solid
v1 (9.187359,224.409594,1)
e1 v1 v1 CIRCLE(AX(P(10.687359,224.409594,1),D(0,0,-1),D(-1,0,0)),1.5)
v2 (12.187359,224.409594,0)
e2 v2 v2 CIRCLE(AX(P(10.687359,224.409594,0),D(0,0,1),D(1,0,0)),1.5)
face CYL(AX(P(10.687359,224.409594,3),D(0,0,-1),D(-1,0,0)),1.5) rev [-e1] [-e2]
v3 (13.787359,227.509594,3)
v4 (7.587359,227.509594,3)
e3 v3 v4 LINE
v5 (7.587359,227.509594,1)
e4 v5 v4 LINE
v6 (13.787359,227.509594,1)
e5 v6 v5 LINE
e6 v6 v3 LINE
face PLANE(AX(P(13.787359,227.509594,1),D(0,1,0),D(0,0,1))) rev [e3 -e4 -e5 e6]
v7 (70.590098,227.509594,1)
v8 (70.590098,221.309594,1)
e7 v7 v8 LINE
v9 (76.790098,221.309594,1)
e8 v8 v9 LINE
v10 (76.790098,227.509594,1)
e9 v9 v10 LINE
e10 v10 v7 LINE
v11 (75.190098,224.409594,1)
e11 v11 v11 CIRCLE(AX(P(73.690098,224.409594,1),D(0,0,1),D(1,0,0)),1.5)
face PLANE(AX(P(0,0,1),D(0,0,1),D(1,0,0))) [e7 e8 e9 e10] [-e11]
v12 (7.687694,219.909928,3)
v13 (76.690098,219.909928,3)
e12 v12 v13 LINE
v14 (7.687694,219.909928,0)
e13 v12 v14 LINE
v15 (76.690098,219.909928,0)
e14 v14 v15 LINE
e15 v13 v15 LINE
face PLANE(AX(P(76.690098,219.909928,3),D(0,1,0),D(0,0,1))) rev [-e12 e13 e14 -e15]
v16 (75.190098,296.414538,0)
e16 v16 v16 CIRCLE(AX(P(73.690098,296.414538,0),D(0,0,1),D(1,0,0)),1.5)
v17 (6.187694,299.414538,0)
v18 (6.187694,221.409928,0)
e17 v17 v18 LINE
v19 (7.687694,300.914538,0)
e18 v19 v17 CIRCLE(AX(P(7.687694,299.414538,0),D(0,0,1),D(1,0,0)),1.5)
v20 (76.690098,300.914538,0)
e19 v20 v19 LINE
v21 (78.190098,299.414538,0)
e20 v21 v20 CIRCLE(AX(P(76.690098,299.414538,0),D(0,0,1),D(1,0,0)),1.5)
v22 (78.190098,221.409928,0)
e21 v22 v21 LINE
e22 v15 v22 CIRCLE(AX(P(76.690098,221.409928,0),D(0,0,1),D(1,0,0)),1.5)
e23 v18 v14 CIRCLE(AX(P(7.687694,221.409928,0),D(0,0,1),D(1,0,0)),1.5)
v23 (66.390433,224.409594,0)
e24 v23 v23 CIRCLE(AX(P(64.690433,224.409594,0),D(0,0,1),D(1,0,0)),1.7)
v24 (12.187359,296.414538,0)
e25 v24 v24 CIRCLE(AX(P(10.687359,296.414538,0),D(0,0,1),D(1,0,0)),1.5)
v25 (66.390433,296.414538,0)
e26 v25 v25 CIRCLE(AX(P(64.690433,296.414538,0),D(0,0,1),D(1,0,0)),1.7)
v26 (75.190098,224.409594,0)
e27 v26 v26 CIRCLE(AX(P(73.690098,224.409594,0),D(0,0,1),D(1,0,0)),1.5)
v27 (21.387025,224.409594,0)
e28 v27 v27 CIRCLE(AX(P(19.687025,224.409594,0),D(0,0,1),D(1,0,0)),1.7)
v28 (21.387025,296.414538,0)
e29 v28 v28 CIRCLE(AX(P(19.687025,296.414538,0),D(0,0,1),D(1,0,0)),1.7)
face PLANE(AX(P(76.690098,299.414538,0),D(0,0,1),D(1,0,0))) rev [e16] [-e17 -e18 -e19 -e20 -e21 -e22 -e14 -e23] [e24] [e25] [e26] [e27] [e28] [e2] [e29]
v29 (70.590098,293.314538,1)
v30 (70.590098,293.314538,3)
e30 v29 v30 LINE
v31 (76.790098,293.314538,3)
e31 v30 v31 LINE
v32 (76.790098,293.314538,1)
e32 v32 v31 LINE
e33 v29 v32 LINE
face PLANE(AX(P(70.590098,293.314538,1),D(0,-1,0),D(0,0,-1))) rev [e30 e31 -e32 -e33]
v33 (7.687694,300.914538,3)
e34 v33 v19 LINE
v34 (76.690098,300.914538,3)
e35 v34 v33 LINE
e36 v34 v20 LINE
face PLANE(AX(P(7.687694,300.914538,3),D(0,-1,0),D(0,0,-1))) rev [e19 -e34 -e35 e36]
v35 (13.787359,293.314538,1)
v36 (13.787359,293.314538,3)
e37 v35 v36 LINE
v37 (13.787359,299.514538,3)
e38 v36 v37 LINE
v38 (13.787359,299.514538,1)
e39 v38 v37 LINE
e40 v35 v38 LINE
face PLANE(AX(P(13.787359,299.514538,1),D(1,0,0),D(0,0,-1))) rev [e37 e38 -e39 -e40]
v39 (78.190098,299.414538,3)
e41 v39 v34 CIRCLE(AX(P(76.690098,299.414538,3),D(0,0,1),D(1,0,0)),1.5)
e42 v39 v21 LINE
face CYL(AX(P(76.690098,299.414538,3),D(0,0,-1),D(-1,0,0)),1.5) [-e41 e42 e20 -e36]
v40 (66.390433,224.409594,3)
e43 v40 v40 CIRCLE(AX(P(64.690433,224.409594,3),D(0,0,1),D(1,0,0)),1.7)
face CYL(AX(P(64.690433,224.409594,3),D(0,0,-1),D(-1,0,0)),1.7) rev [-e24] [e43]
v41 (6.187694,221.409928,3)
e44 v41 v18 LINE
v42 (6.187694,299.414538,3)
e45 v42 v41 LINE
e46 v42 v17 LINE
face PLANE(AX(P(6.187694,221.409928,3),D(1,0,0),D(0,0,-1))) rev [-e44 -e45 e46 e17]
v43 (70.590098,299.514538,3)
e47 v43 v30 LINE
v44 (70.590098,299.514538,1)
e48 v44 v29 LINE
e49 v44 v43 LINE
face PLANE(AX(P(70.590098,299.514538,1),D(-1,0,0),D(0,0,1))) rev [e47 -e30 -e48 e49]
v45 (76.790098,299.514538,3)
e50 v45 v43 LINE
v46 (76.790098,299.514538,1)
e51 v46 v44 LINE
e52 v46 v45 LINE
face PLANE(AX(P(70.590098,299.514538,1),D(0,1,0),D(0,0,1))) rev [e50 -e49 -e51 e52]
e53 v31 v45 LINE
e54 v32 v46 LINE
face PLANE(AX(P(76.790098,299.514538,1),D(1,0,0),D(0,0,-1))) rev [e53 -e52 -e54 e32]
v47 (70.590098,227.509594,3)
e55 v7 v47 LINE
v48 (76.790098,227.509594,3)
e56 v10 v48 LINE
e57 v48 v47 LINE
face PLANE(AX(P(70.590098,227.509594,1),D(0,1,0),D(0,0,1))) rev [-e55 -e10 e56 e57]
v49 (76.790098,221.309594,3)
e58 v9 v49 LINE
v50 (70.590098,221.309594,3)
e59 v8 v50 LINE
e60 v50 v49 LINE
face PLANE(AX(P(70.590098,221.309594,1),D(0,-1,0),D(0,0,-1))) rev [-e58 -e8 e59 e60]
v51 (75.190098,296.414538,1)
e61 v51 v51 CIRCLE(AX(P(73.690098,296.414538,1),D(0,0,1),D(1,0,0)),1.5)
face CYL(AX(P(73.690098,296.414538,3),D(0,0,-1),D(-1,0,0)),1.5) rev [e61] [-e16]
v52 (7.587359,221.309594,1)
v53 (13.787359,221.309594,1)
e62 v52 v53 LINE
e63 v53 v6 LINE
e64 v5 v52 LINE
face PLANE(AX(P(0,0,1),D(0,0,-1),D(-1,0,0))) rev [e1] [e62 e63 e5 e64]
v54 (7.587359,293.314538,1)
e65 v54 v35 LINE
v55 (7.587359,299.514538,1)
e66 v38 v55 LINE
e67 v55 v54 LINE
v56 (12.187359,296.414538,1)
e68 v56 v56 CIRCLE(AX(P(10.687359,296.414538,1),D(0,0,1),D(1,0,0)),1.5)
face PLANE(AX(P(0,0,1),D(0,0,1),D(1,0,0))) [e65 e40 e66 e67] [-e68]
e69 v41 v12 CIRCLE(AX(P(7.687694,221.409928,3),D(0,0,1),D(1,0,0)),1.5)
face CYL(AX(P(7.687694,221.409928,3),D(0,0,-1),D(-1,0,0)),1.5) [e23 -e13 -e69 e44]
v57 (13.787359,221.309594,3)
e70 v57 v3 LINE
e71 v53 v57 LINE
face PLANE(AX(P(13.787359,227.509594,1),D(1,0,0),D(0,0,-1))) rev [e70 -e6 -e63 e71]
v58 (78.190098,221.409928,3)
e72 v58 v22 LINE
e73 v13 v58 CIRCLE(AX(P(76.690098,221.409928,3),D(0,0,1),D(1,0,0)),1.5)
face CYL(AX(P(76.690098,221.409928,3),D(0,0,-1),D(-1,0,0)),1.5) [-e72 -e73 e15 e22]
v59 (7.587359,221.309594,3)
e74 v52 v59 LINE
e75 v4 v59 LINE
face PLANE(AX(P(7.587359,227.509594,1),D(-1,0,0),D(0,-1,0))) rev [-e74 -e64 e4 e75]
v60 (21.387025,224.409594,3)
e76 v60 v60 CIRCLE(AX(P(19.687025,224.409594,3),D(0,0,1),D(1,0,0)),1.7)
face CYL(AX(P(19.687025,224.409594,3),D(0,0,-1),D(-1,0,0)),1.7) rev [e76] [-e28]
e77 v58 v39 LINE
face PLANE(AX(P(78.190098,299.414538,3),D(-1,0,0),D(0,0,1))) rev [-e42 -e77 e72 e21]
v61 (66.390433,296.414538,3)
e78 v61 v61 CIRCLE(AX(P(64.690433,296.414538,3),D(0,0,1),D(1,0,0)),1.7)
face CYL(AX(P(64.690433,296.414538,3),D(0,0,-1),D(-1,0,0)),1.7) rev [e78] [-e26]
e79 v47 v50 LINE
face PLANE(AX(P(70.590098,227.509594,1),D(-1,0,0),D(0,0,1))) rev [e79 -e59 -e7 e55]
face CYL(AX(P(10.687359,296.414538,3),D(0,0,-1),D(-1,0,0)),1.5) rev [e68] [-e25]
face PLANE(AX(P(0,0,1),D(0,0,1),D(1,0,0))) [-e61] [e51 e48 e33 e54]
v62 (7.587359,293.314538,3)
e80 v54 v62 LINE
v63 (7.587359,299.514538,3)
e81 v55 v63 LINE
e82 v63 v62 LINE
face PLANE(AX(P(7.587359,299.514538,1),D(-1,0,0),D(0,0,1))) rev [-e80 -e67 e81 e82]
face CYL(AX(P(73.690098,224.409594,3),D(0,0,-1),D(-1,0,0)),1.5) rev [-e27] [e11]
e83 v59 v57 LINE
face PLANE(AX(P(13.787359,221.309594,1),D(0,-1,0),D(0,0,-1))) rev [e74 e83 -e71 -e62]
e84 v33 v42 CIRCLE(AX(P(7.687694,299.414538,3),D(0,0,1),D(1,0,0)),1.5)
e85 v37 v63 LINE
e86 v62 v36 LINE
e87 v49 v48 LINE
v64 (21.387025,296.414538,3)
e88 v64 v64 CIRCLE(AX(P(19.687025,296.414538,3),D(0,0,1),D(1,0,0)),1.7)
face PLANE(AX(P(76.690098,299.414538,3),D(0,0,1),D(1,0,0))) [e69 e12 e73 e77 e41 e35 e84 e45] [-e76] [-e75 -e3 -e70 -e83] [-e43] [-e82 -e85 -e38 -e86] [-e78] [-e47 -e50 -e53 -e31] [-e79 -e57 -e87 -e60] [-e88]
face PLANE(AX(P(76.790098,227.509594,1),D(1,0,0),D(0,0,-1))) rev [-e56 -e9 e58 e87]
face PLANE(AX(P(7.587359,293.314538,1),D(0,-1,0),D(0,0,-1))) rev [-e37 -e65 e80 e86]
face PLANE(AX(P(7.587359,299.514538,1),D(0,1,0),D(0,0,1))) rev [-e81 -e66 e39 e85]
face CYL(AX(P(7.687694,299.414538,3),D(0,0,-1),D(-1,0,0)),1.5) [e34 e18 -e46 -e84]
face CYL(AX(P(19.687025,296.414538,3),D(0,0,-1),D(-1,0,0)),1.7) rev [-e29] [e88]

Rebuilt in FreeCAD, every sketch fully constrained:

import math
import FreeCAD as App
import Part
import Sketcher
from FreeCAD import Vector

doc = App.newDocument("Part")
body = doc.addObject("PartDesign::Body", "Body")

sketch1 = body.newObject("Sketcher::SketchObject", "Sketch")
sketch1.AttachmentSupport = (doc.getObject("XY_Plane"), [""])
sketch1.MapMode = "FlatFace"
sketch1.addGeometry([
    Part.LineSegment(Vector(6.2, 299.4, 0), Vector(6.2, 221.4, 0)),
    Part.ArcOfCircle(Part.Circle(Vector(7.7, 221.4, 0), Vector(0, 0, 1), 1.5), math.radians(-180), math.radians(-90)),
    Part.LineSegment(Vector(7.7, 219.9, 0), Vector(76.7, 219.9, 0)),
    Part.ArcOfCircle(Part.Circle(Vector(76.7, 221.4, 0), Vector(0, 0, 1), 1.5), math.radians(-90), math.radians(0)),
    Part.LineSegment(Vector(78.2, 221.4, 0), Vector(78.2, 299.4, 0)),
    Part.ArcOfCircle(Part.Circle(Vector(76.7, 299.4, 0), Vector(0, 0, 1), 1.5), math.radians(0), math.radians(90)),
    Part.LineSegment(Vector(76.7, 300.9, 0), Vector(7.7, 300.9, 0)),
    Part.ArcOfCircle(Part.Circle(Vector(7.7, 299.4, 0), Vector(0, 0, 1), 1.5), math.radians(90), math.radians(180)),
    Part.Circle(Vector(73.7, 224.4, 0), Vector(0, 0, 1), 1.5),
    Part.Circle(Vector(64.7, 224.4, 0), Vector(0, 0, 1), 1.7),
    Part.Circle(Vector(19.7, 224.4, 0), Vector(0, 0, 1), 1.7),
    Part.Circle(Vector(10.7, 224.4, 0), Vector(0, 0, 1), 1.5),
    Part.Circle(Vector(73.7, 296.4, 0), Vector(0, 0, 1), 1.5),
    Part.Circle(Vector(64.7, 296.4, 0), Vector(0, 0, 1), 1.7),
    Part.Circle(Vector(19.7, 296.4, 0), Vector(0, 0, 1), 1.7),
    Part.Circle(Vector(10.7, 296.4, 0), Vector(0, 0, 1), 1.5),
], False)
sketch1.addConstraint([
    Sketcher.Constraint("Tangent", 0, 2, 1, 1),
    Sketcher.Constraint("Tangent", 1, 2, 2, 1),
    Sketcher.Constraint("Tangent", 2, 2, 3, 1),
    Sketcher.Constraint("Tangent", 3, 2, 4, 1),
    Sketcher.Constraint("Tangent", 4, 2, 5, 1),
    Sketcher.Constraint("Tangent", 5, 2, 6, 1),
    Sketcher.Constraint("Tangent", 6, 2, 7, 1),
    Sketcher.Constraint("Tangent", 7, 2, 0, 1),
    Sketcher.Constraint("Vertical", 0),
    Sketcher.Constraint("Horizontal", 2),
    Sketcher.Constraint("Vertical", 4),
    Sketcher.Constraint("Horizontal", 6),
    Sketcher.Constraint("Equal", 1, 3),
    Sketcher.Constraint("Equal", 3, 5),
    Sketcher.Constraint("Equal", 5, 7),
    Sketcher.Constraint("Equal", 7, 8),
    Sketcher.Constraint("Equal", 9, 10),
    Sketcher.Constraint("Equal", 8, 11),
    Sketcher.Constraint("Equal", 11, 12),
    Sketcher.Constraint("Equal", 10, 13),
    Sketcher.Constraint("Equal", 13, 14),
    Sketcher.Constraint("Equal", 12, 15),
    Sketcher.Constraint("Horizontal", 8, 3, 9, 3),
    Sketcher.Constraint("Horizontal", 9, 3, 10, 3),
    Sketcher.Constraint("Horizontal", 10, 3, 11, 3),
    Sketcher.Constraint("Horizontal", 12, 3, 13, 3),
    Sketcher.Constraint("Horizontal", 13, 3, 14, 3),
    Sketcher.Constraint("Horizontal", 14, 3, 15, 3),
    Sketcher.Constraint("Vertical", 8, 3, 12, 3),
    Sketcher.Constraint("Vertical", 9, 3, 13, 3),
    Sketcher.Constraint("Vertical", 10, 3, 14, 3),
    Sketcher.Constraint("Vertical", 11, 3, 15, 3),
    Sketcher.Constraint("Diameter", 8, 3.0),
    Sketcher.Constraint("Diameter", 9, 3.4),
    Sketcher.Constraint("DistanceX", 8, 3, 3, 3, 3.0),
    Sketcher.Constraint("DistanceY", 12, 3, 5, 3, 3.0),
    Sketcher.Constraint("DistanceY", 0, 2, 0, 1, 78.00461),
    Sketcher.Constraint("DistanceX", -1, 1, 3, 3, 76.690098),
    Sketcher.Constraint("DistanceX", 2, 1, 2, 2, 69.002404),
    Sketcher.Constraint("DistanceY", -1, 1, 1, 3, 221.409928),
    Sketcher.Constraint("DistanceX", -1, 1, 11, 3, 10.687359),
    Sketcher.Constraint("DistanceX", 1, 3, 9, 3, 57.002739),
    Sketcher.Constraint("DistanceX", 1, 3, 10, 3, 11.999331),
    Sketcher.Constraint("DistanceY", -1, 1, 8, 3, 224.409594),
])
pad1 = body.newObject("PartDesign::Pad", "Pad")
pad1.Profile = sketch1
pad1.Length = 3

sketch2 = body.newObject("Sketcher::SketchObject", "Sketch001")
sketch2.AttachmentSupport = (doc.getObject("XY_Plane"), [""])
sketch2.MapMode = "FlatFace"
sketch2.AttachmentOffset = App.Placement(Vector(0, 0, 3), App.Rotation())
sketch2.addGeometry([
    Part.LineSegment(Vector(8, 300, 0), Vector(8, 293, 0)),
    Part.LineSegment(Vector(8, 293, 0), Vector(14, 293, 0)),
    Part.LineSegment(Vector(14, 293, 0), Vector(14, 300, 0)),
    Part.LineSegment(Vector(14, 300, 0), Vector(8, 300, 0)),
    Part.LineSegment(Vector(71, 300, 0), Vector(71, 293, 0)),
    Part.LineSegment(Vector(71, 293, 0), Vector(77, 293, 0)),
    Part.LineSegment(Vector(77, 293, 0), Vector(77, 300, 0)),
    Part.LineSegment(Vector(77, 300, 0), Vector(71, 300, 0)),
    Part.LineSegment(Vector(71, 228, 0), Vector(71, 221, 0)),
    Part.LineSegment(Vector(71, 221, 0), Vector(77, 221, 0)),
    Part.LineSegment(Vector(77, 221, 0), Vector(77, 228, 0)),
    Part.LineSegment(Vector(77, 228, 0), Vector(71, 228, 0)),
    Part.LineSegment(Vector(8, 228, 0), Vector(8, 221, 0)),
    Part.LineSegment(Vector(8, 221, 0), Vector(14, 221, 0)),
    Part.LineSegment(Vector(14, 221, 0), Vector(14, 228, 0)),
    Part.LineSegment(Vector(14, 228, 0), Vector(8, 228, 0)),
], False)
sketch2.addConstraint([
    Sketcher.Constraint("Coincident", 0, 2, 1, 1),
    Sketcher.Constraint("Coincident", 1, 2, 2, 1),
    Sketcher.Constraint("Coincident", 2, 2, 3, 1),
    Sketcher.Constraint("Coincident", 3, 2, 0, 1),
    Sketcher.Constraint("Coincident", 4, 2, 5, 1),
    Sketcher.Constraint("Coincident", 5, 2, 6, 1),
    Sketcher.Constraint("Coincident", 6, 2, 7, 1),
    Sketcher.Constraint("Coincident", 7, 2, 4, 1),
    Sketcher.Constraint("Coincident", 8, 2, 9, 1),
    Sketcher.Constraint("Coincident", 9, 2, 10, 1),
    Sketcher.Constraint("Coincident", 10, 2, 11, 1),
    Sketcher.Constraint("Coincident", 11, 2, 8, 1),
    Sketcher.Constraint("Coincident", 12, 2, 13, 1),
    Sketcher.Constraint("Coincident", 13, 2, 14, 1),
    Sketcher.Constraint("Coincident", 14, 2, 15, 1),
    Sketcher.Constraint("Coincident", 15, 2, 12, 1),
    Sketcher.Constraint("Vertical", 0),
    Sketcher.Constraint("Horizontal", 1),
    Sketcher.Constraint("Vertical", 2),
    Sketcher.Constraint("Horizontal", 3),
    Sketcher.Constraint("Vertical", 4),
    Sketcher.Constraint("Horizontal", 5),
    Sketcher.Constraint("Vertical", 6),
    Sketcher.Constraint("Horizontal", 7),
    Sketcher.Constraint("Vertical", 8),
    Sketcher.Constraint("Horizontal", 9),
    Sketcher.Constraint("Vertical", 10),
    Sketcher.Constraint("Horizontal", 11),
    Sketcher.Constraint("Vertical", 12),
    Sketcher.Constraint("Horizontal", 13),
    Sketcher.Constraint("Vertical", 14),
    Sketcher.Constraint("Horizontal", 15),
    Sketcher.Constraint("Horizontal", 1, 2, 4, 2),
    Sketcher.Constraint("Horizontal", 3, 2, 6, 2),
    Sketcher.Constraint("Horizontal", 9, 2, 12, 2),
    Sketcher.Constraint("Horizontal", 11, 2, 14, 2),
    Sketcher.Constraint("Vertical", 7, 2, 8, 2),
    Sketcher.Constraint("Vertical", 6, 2, 9, 2),
    Sketcher.Constraint("Vertical", 3, 2, 12, 2),
    Sketcher.Constraint("Vertical", 2, 2, 13, 2),
    Sketcher.Constraint("Equal", 3, 5),
    Sketcher.Constraint("Equal", 15, 0),
    Sketcher.Constraint("Equal", 6, 8),
    Sketcher.Constraint("DistanceX", 1, 1, 1, 2, 6.2),
    Sketcher.Constraint("DistanceX", -1, 1, 4, 2, 70.590098),
    Sketcher.Constraint("DistanceX", -1, 1, 0, 2, 7.587359),
    Sketcher.Constraint("DistanceY", -1, 1, 0, 2, 293.314538),
    Sketcher.Constraint("DistanceY", -1, 1, 8, 2, 221.309594),
])
pocket1 = body.newObject("PartDesign::Pocket", "Pocket")
pocket1.Profile = sketch2
pocket1.Length = 2

doc.recompute()
